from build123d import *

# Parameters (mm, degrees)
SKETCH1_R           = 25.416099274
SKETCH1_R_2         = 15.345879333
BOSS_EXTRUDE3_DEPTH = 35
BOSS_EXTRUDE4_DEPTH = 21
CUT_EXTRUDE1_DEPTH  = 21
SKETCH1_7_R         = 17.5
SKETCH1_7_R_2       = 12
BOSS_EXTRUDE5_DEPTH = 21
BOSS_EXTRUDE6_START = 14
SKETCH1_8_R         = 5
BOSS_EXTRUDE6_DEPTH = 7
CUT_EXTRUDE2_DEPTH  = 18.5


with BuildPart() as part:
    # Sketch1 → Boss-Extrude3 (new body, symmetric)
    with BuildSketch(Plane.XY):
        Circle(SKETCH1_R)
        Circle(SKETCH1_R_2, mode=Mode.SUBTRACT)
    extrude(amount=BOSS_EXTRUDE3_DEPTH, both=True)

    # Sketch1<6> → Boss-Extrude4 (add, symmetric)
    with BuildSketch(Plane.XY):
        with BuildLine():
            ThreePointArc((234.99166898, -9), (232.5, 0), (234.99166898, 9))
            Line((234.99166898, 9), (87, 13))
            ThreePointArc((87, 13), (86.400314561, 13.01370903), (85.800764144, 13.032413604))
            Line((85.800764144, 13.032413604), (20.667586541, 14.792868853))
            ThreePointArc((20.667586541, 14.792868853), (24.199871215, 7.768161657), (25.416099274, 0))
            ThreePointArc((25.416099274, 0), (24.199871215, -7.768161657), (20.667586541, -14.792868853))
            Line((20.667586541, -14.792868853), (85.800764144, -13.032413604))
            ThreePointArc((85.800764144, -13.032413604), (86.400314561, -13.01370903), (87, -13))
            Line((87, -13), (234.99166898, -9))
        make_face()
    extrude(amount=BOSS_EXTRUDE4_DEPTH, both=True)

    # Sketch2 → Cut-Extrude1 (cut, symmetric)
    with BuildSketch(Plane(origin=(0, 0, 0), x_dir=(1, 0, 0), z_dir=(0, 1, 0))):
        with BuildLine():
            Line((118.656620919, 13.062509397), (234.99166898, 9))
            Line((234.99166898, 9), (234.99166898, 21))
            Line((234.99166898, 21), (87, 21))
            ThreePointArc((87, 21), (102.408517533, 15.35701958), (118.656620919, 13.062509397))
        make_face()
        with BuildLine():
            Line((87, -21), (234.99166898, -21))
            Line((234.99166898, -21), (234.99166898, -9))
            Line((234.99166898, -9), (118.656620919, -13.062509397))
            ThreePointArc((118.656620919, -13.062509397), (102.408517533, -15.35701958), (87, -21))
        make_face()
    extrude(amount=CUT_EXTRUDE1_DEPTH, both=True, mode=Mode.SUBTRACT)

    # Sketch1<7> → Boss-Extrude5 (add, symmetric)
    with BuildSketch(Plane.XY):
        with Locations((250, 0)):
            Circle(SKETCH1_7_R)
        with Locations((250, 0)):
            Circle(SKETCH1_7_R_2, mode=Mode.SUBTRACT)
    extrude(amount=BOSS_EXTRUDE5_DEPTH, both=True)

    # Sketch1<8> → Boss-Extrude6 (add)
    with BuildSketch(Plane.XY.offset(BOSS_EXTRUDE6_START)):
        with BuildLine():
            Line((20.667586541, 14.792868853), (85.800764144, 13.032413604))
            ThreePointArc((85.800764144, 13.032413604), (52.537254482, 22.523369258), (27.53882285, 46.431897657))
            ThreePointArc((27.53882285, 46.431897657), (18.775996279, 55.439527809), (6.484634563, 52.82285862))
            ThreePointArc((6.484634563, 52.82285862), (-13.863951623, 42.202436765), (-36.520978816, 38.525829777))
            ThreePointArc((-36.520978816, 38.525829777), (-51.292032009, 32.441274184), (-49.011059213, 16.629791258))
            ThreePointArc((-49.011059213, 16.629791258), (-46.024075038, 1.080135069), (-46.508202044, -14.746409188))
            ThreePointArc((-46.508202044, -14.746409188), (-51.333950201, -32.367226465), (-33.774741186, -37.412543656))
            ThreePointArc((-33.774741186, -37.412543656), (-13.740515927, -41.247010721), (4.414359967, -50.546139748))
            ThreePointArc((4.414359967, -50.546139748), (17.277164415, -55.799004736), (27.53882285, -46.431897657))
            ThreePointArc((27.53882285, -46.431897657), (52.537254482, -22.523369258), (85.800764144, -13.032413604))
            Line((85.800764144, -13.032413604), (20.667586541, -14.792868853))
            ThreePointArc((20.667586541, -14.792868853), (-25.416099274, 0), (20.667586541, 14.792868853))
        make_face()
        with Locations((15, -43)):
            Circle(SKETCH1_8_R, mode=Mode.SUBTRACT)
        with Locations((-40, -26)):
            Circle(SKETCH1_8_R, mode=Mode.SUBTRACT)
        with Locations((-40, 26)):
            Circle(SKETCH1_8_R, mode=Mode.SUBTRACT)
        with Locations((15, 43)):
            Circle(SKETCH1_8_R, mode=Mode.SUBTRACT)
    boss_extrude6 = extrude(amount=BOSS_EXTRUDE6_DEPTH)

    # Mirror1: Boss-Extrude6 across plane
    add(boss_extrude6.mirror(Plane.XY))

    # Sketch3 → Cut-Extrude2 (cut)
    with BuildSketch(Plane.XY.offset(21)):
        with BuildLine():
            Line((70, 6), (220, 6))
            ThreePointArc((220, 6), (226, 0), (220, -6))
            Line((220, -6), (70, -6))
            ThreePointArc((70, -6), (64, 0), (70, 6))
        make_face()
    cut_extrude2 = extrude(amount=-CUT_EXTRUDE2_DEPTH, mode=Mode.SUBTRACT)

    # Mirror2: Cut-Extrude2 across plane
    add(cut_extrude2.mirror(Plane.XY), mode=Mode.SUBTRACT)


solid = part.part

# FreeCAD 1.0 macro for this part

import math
import FreeCAD as App
import Part
import Sketcher
Q = App.Units.Quantity

doc = App.newDocument("Part")
body = doc.addObject("PartDesign::Body", "Body")

# Sketch on XY plane
sketch1 = body.newObject("Sketcher::SketchObject", "Sketch")
sketch1.AttachmentSupport = (doc.getObject("XY_Plane"), [""])
sketch1.MapMode = "FlatFace"
sketch1.addGeometry([
    Part.Circle(App.Vector(0, 0, 0), App.Vector(0, 0, 1), 25),
    Part.Circle(App.Vector(0, 0, 0), App.Vector(0, 0, 1), 15),
], False)
sketch1.addConstraint([
    Sketcher.Constraint("Coincident", 0, 3, -1, 1),
    Sketcher.Constraint("Coincident", 1, 3, -1, 1),
    Sketcher.Constraint("Diameter", 0, 50.832199),
    Sketcher.Constraint("Diameter", 1, 30.691759),
])
pad1 = body.newObject("PartDesign::Pad", "Pad")
pad1.Profile = sketch1
pad1.Length = 70
pad1.Midplane = True

# Sketch on XY plane
sketch2 = body.newObject("Sketcher::SketchObject", "Sketch001")
sketch2.AttachmentSupport = (doc.getObject("XY_Plane"), [""])
sketch2.MapMode = "FlatFace"
sketch2.addGeometry([
    Part.ArcOfCircle(Part.Circle(App.Vector(250, 0, 0), App.Vector(0, 0, 1), 17.5), math.radians(149), math.radians(211)),  # 0
    Part.LineSegment(App.Vector(235, 9, 0), App.Vector(87, 13, 0)),  # 1
    Part.ArcOfCircle(Part.Circle(App.Vector(88.3, 85, 0), App.Vector(0, 0, 1), 72), math.radians(-92.03), math.radians(-91.07)),  # 2
    Part.LineSegment(App.Vector(85.8, 13, 0), App.Vector(20.7, 14.8, 0)),  # 3
    Part.ArcOfCircle(Part.Circle(App.Vector(0, 0, 0), App.Vector(0, 0, 1), 25.4), math.radians(0), math.radians(36)),  # 4
    Part.ArcOfCircle(Part.Circle(App.Vector(0, 0, 0), App.Vector(0, 0, 1), 25.4), math.radians(-36), math.radians(0)),  # 5
    Part.LineSegment(App.Vector(20.7, -14.8, 0), App.Vector(85.8, -13, 0)),  # 6
    Part.ArcOfCircle(Part.Circle(App.Vector(88.3, -85, 0), App.Vector(0, 0, 1), 72), math.radians(91.07), math.radians(92.03)),  # 7
    Part.LineSegment(App.Vector(87, -13, 0), App.Vector(235, -9, 0)),  # 8
], False)
sketch2.addConstraint([
    Sketcher.Constraint("Coincident", 0, 1, 1, 1),
    Sketcher.Constraint("Coincident", 1, 2, 2, 2),
    Sketcher.Constraint("Coincident", 2, 1, 3, 1),
    Sketcher.Constraint("Coincident", 3, 2, 4, 2),
    Sketcher.Constraint("Tangent", 4, 1, 5, 2),
    Sketcher.Constraint("Coincident", 5, 1, 6, 1),
    Sketcher.Constraint("Coincident", 6, 2, 7, 2),
    Sketcher.Constraint("Coincident", 7, 1, 8, 1),
    Sketcher.Constraint("Coincident", 8, 2, 0, 2),
    Sketcher.Constraint("Coincident", 4, 3, -1, 1),
    Sketcher.Constraint("Equal", 4, 5),
    Sketcher.Constraint("Equal", 2, 7),
    Sketcher.Constraint("Symmetric", 2, 3, 7, 3, -1),
    Sketcher.Constraint("Symmetric", 0, 1, 8, 2, -1),
    Sketcher.Constraint("PointOnObject", 4, 1, -1),
    Sketcher.Constraint("Parallel", 1, 3),
    Sketcher.Constraint("Parallel", 6, 8),
    Sketcher.Constraint("Vertical", 2, 1, 6, 2),
    Sketcher.Constraint("Vertical", 1, 2, 7, 1),
    Sketcher.Constraint("Radius", 0, 17.5),
    Sketcher.Constraint("DistanceX", -1, 1, 0, 3, 250.0),
    Sketcher.Constraint("DistanceY", -1, 1, 0, 1, 9.0),
    Sketcher.Constraint("DistanceX", -1, 1, 1, 2, 87.0),
    Sketcher.Constraint("DistanceY", -1, 1, 1, 2, 13.0),
    Sketcher.Constraint("Radius", 4, 25.416099),
    Sketcher.Constraint("Radius", 2, 72.000008),
    Sketcher.Constraint("DistanceX", -1, 1, 2, 3, 88.34566),
    Sketcher.Constraint("DistanceY", -1, 1, 3, 2, 14.792869),
])
pad2 = body.newObject("PartDesign::Pad", "Pad001")
pad2.Profile = sketch2
pad2.Length = 42
pad2.Midplane = True

# Sketch on XZ plane
sketch3 = body.newObject("Sketcher::SketchObject", "Sketch002")
sketch3.AttachmentSupport = (doc.getObject("XZ_Plane"), [""])
sketch3.MapMode = "FlatFace"
sketch3.addGeometry([
    Part.LineSegment(App.Vector(119, -13, 0), App.Vector(235, -9, 0)),  # 0
    Part.LineSegment(App.Vector(235, -9, 0), App.Vector(235, -21, 0)),  # 1
    Part.LineSegment(App.Vector(235, -21, 0), App.Vector(87, -21, 0)),  # 2
    Part.ArcOfCircle(Part.Circle(App.Vector(121, -91, 0), App.Vector(0, 0, 1), 78), math.radians(92), math.radians(116)),  # 3
    Part.LineSegment(App.Vector(87, 21, 0), App.Vector(235, 21, 0)),  # 4
    Part.LineSegment(App.Vector(235, 21, 0), App.Vector(235, 9, 0)),  # 5
    Part.LineSegment(App.Vector(235, 9, 0), App.Vector(119, 13, 0)),  # 6
    Part.ArcOfCircle(Part.Circle(App.Vector(121, 91, 0), App.Vector(0, 0, 1), 78), math.radians(-116), math.radians(-92)),  # 7
], False)
sketch3.addConstraint([
    Sketcher.Constraint("Coincident", 0, 2, 1, 1),
    Sketcher.Constraint("Coincident", 1, 2, 2, 1),
    Sketcher.Constraint("Coincident", 2, 2, 3, 2),
    Sketcher.Constraint("Tangent", 3, 1, 0, 1),
    Sketcher.Constraint("Coincident", 4, 2, 5, 1),
    Sketcher.Constraint("Coincident", 5, 2, 6, 1),
    Sketcher.Constraint("Tangent", 6, 2, 7, 2),
    Sketcher.Constraint("Coincident", 7, 1, 4, 1),
    Sketcher.Constraint("Vertical", 1),
    Sketcher.Constraint("Horizontal", 2),
    Sketcher.Constraint("Horizontal", 4),
    Sketcher.Constraint("Vertical", 5),
    Sketcher.Constraint("Equal", 3, 7),
    Sketcher.Constraint("Symmetric", 3, 3, 7, 3, -1),
    Sketcher.Constraint("Symmetric", 1, 2, 4, 2, -1),
    Sketcher.Constraint("Vertical", 3, 1, 6, 2),
    Sketcher.Constraint("Radius", 3, 78.0),
    Sketcher.Constraint("DistanceY", 1, 2, 1, 1, 12.0),
    Sketcher.Constraint("Angle", 0, Q("2 deg")),
    Sketcher.Constraint("DistanceY", 0, 2, -1, 1, 9.0),
    Sketcher.Constraint("DistanceX", -1, 1, 2, 2, 87.0),
    Sketcher.Constraint("DistanceX", 2, 2, 2, 1, 147.991669),
])
pocket1 = body.newObject("PartDesign::Pocket", "Pocket")
pocket1.Profile = sketch3
pocket1.Length = 42
pocket1.Midplane = True

# Sketch on XY plane
sketch4 = body.newObject("Sketcher::SketchObject", "Sketch003")
sketch4.AttachmentSupport = (doc.getObject("XY_Plane"), [""])
sketch4.MapMode = "FlatFace"
sketch4.addGeometry([
    Part.Circle(App.Vector(250, 0, 0), App.Vector(0, 0, 1), 18),
    Part.Circle(App.Vector(250, 0, 0), App.Vector(0, 0, 1), 12),
], False)
sketch4.addConstraint([
    Sketcher.Constraint("Coincident", 1, 3, 0, 3),
    Sketcher.Constraint("PointOnObject", 0, 3, -1),
    Sketcher.Constraint("Diameter", 0, 35.0),
    Sketcher.Constraint("Diameter", 1, 24.0),
    Sketcher.Constraint("DistanceX", -1, 1, 0, 3, 250.0),
])
pad3 = body.newObject("PartDesign::Pad", "Pad002")
pad3.Profile = sketch4
pad3.Length = 42
pad3.Midplane = True

# Sketch on XY plane
sketch5 = body.newObject("Sketcher::SketchObject", "Sketch004")
sketch5.AttachmentSupport = (doc.getObject("XY_Plane"), [""])
sketch5.MapMode = "FlatFace"
sketch5.AttachmentOffset = App.Placement(App.Vector(0, 0, 14), App.Rotation())
sketch5.addGeometry([
    Part.LineSegment(App.Vector(21, 15, 0), App.Vector(86, 13, 0)),  # 0
    Part.ArcOfCircle(Part.Circle(App.Vector(88, 85, 0), App.Vector(0, 0, 1), 72), math.radians(-148), math.radians(-92)),  # 1
    Part.ArcOfCircle(Part.Circle(App.Vector(15, 43, 0), App.Vector(0, 0, 1), 13), math.radians(15), math.radians(131)),  # 2
    Part.ArcOfCircle(Part.Circle(App.Vector(-37, 111, 0), App.Vector(0, 0, 1), 72), math.radians(-90), math.radians(-53)),  # 3
    Part.ArcOfCircle(Part.Circle(App.Vector(-40, 26, 0), App.Vector(0, 0, 1), 13), math.radians(74), math.radians(226)),  # 4
    Part.ArcOfCircle(Part.Circle(App.Vector(-118, -5, 0), App.Vector(0, 0, 1), 72), math.radians(-8), math.radians(17)),  # 5
    Part.ArcOfCircle(Part.Circle(App.Vector(-40, -26, 0), App.Vector(0, 0, 1), 13), math.radians(120), math.radians(299)),  # 6
    Part.ArcOfCircle(Part.Circle(App.Vector(-37, -109, 0), App.Vector(0, 0, 1), 72), math.radians(55), math.radians(87)),  # 7
    Part.ArcOfCircle(Part.Circle(App.Vector(15, -43, 0), App.Vector(0, 0, 1), 13), math.radians(-145), math.radians(-15)),  # 8
    Part.ArcOfCircle(Part.Circle(App.Vector(88, -85, 0), App.Vector(0, 0, 1), 72), math.radians(92), math.radians(148)),  # 9
    Part.LineSegment(App.Vector(86, -13, 0), App.Vector(21, -15, 0)),  # 10
    Part.ArcOfCircle(Part.Circle(App.Vector(0, 0, 0), App.Vector(0, 0, 1), 25), math.radians(36), math.radians(324)),  # 11
    Part.Circle(App.Vector(-40, -26, 0), App.Vector(0, 0, 1), 5),  # 12
    Part.Circle(App.Vector(15, -43, 0), App.Vector(0, 0, 1), 5),  # 13
    Part.Circle(App.Vector(-40, 26, 0), App.Vector(0, 0, 1), 5),  # 14
    Part.Circle(App.Vector(15, 43, 0), App.Vector(0, 0, 1), 5),  # 15
], False)
sketch5.addConstraint([
    Sketcher.Constraint("Coincident", 0, 2, 1, 2),
    Sketcher.Constraint("Coincident", 1, 1, 2, 1),
    Sketcher.Constraint("Coincident", 2, 2, 3, 2),
    Sketcher.Constraint("Coincident", 3, 1, 4, 1),
    Sketcher.Constraint("Coincident", 4, 2, 5, 2),
    Sketcher.Constraint("Coincident", 5, 1, 6, 1),
    Sketcher.Constraint("Coincident", 6, 2, 7, 2),
    Sketcher.Constraint("Coincident", 7, 1, 8, 1),
    Sketcher.Constraint("Coincident", 8, 2, 9, 2),
    Sketcher.Constraint("Coincident", 9, 1, 10, 1),
    Sketcher.Constraint("Coincident", 10, 2, 11, 2),
    Sketcher.Constraint("Coincident", 11, 1, 0, 1),
    Sketcher.Constraint("Coincident", 11, 3, -1, 1),
    Sketcher.Constraint("Coincident", 12, 3, 6, 3),
    Sketcher.Constraint("Coincident", 13, 3, 8, 3),
    Sketcher.Constraint("Coincident", 14, 3, 4, 3),
    Sketcher.Constraint("Coincident", 15, 3, 2, 3),
    Sketcher.Constraint("Equal", 1, 3),
    Sketcher.Constraint("Equal", 2, 4),
    Sketcher.Constraint("Equal", 3, 5),
    Sketcher.Constraint("Equal", 4, 6),
    Sketcher.Constraint("Equal", 5, 7),
    Sketcher.Constraint("Equal", 6, 8),
    Sketcher.Constraint("Equal", 7, 9),
    Sketcher.Constraint("Equal", 12, 13),
    Sketcher.Constraint("Equal", 13, 14),
    Sketcher.Constraint("Equal", 14, 15),
    Sketcher.Constraint("Symmetric", 4, 3, 6, 3, -1),
    Sketcher.Constraint("Symmetric", 2, 3, 8, 3, -1),
    Sketcher.Constraint("Symmetric", 1, 3, 9, 3, -1),
    Sketcher.Constraint("Vertical", 0, 2, 9, 1),
    Sketcher.Constraint("Vertical", 10, 2, 11, 1),
    Sketcher.Constraint("Diameter", 12, 10.0),
    Sketcher.Constraint("Radius", 1, 72.0),
    Sketcher.Constraint("Radius", 2, 13.0),
    Sketcher.Constraint("DistanceX", -1, 1, 2, 3, 15.0),
    Sketcher.Constraint("DistanceY", -1, 1, 2, 3, 43.0),
    Sketcher.Constraint("DistanceX", 4, 3, -1, 1, 40.0),
    Sketcher.Constraint("DistanceY", -1, 1, 4, 3, 26.0),
    Sketcher.Constraint("Radius", 11, 25.416099),
    Sketcher.Constraint("DistanceY", 5, 1, 4, 2, 31.3762),
    Sketcher.Constraint("DistanceX", 6, 2, 7, 1, 38.189101),
    Sketcher.Constraint("DistanceX", -1, 1, 1, 3, 88.34566),
    Sketcher.Constraint("DistanceX", 3, 3, -1, 1, 36.577759),
    Sketcher.Constraint("DistanceX", 5, 3, -1, 1, 117.796089),
    Sketcher.Constraint("DistanceY", -1, 1, 2, 2, 52.822859),
    Sketcher.Constraint("DistanceX", 6, 2, -1, 1, 33.774741),
    Sketcher.Constraint("DistanceY", 10, 2, -1, 1, 14.792869),
    Sketcher.Constraint("DistanceY", 5, 3, 1, 3, 89.632491),
    Sketcher.Constraint("DistanceY", 0, 2, 1, 3, 71.95501),
])
pad4 = body.newObject("PartDesign::Pad", "Pad003")
pad4.Profile = sketch5
pad4.Length = 7
doc.recompute()

mirrored = body.newObject("PartDesign::Mirrored", "Mirrored")
mirrored.Originals = [pad4]
mirrored.MirrorPlane = (doc.getObject("XY_Plane"), [""])
body.Tip = mirrored

# Sketch on XY plane
sketch6 = body.newObject("Sketcher::SketchObject", "Sketch005")
sketch6.AttachmentSupport = (doc.getObject("XY_Plane"), [""])
sketch6.MapMode = "FlatFace"
sketch6.AttachmentOffset = App.Placement(App.Vector(0, 0, 21), App.Rotation())
sketch6.addGeometry([
    Part.LineSegment(App.Vector(220, 6, 0), App.Vector(70, 6, 0)),
    Part.ArcOfCircle(Part.Circle(App.Vector(70, 0, 0), App.Vector(0, 0, 1), 6), math.radians(90), math.radians(270)),
    Part.LineSegment(App.Vector(70, -6, 0), App.Vector(220, -6, 0)),
    Part.ArcOfCircle(Part.Circle(App.Vector(220, 0, 0), App.Vector(0, 0, 1), 6), math.radians(-90), math.radians(90)),
], False)
sketch6.addConstraint([
    Sketcher.Constraint("Tangent", 0, 2, 1, 1),
    Sketcher.Constraint("Tangent", 1, 2, 2, 1),
    Sketcher.Constraint("Tangent", 2, 2, 3, 1),
    Sketcher.Constraint("Tangent", 3, 2, 0, 1),
    Sketcher.Constraint("Horizontal", 0),
    Sketcher.Constraint("Horizontal", 2),
    Sketcher.Constraint("PointOnObject", 1, 3, -1),
    Sketcher.Constraint("Radius", 1, 6.0),
    Sketcher.Constraint("DistanceX", 0, 2, 0, 1, 150.0),
    Sketcher.Constraint("DistanceX", -1, 1, 1, 3, 70.0),
])
pocket2 = body.newObject("PartDesign::Pocket", "Pocket001")
pocket2.Profile = sketch6
pocket2.Length = 18.5
doc.recompute()

mirrored2 = body.newObject("PartDesign::Mirrored", "Mirrored001")
mirrored2.Originals = [pocket2]
mirrored2.MirrorPlane = (doc.getObject("XY_Plane"), [""])
body.Tip = mirrored2

doc.recompute()
